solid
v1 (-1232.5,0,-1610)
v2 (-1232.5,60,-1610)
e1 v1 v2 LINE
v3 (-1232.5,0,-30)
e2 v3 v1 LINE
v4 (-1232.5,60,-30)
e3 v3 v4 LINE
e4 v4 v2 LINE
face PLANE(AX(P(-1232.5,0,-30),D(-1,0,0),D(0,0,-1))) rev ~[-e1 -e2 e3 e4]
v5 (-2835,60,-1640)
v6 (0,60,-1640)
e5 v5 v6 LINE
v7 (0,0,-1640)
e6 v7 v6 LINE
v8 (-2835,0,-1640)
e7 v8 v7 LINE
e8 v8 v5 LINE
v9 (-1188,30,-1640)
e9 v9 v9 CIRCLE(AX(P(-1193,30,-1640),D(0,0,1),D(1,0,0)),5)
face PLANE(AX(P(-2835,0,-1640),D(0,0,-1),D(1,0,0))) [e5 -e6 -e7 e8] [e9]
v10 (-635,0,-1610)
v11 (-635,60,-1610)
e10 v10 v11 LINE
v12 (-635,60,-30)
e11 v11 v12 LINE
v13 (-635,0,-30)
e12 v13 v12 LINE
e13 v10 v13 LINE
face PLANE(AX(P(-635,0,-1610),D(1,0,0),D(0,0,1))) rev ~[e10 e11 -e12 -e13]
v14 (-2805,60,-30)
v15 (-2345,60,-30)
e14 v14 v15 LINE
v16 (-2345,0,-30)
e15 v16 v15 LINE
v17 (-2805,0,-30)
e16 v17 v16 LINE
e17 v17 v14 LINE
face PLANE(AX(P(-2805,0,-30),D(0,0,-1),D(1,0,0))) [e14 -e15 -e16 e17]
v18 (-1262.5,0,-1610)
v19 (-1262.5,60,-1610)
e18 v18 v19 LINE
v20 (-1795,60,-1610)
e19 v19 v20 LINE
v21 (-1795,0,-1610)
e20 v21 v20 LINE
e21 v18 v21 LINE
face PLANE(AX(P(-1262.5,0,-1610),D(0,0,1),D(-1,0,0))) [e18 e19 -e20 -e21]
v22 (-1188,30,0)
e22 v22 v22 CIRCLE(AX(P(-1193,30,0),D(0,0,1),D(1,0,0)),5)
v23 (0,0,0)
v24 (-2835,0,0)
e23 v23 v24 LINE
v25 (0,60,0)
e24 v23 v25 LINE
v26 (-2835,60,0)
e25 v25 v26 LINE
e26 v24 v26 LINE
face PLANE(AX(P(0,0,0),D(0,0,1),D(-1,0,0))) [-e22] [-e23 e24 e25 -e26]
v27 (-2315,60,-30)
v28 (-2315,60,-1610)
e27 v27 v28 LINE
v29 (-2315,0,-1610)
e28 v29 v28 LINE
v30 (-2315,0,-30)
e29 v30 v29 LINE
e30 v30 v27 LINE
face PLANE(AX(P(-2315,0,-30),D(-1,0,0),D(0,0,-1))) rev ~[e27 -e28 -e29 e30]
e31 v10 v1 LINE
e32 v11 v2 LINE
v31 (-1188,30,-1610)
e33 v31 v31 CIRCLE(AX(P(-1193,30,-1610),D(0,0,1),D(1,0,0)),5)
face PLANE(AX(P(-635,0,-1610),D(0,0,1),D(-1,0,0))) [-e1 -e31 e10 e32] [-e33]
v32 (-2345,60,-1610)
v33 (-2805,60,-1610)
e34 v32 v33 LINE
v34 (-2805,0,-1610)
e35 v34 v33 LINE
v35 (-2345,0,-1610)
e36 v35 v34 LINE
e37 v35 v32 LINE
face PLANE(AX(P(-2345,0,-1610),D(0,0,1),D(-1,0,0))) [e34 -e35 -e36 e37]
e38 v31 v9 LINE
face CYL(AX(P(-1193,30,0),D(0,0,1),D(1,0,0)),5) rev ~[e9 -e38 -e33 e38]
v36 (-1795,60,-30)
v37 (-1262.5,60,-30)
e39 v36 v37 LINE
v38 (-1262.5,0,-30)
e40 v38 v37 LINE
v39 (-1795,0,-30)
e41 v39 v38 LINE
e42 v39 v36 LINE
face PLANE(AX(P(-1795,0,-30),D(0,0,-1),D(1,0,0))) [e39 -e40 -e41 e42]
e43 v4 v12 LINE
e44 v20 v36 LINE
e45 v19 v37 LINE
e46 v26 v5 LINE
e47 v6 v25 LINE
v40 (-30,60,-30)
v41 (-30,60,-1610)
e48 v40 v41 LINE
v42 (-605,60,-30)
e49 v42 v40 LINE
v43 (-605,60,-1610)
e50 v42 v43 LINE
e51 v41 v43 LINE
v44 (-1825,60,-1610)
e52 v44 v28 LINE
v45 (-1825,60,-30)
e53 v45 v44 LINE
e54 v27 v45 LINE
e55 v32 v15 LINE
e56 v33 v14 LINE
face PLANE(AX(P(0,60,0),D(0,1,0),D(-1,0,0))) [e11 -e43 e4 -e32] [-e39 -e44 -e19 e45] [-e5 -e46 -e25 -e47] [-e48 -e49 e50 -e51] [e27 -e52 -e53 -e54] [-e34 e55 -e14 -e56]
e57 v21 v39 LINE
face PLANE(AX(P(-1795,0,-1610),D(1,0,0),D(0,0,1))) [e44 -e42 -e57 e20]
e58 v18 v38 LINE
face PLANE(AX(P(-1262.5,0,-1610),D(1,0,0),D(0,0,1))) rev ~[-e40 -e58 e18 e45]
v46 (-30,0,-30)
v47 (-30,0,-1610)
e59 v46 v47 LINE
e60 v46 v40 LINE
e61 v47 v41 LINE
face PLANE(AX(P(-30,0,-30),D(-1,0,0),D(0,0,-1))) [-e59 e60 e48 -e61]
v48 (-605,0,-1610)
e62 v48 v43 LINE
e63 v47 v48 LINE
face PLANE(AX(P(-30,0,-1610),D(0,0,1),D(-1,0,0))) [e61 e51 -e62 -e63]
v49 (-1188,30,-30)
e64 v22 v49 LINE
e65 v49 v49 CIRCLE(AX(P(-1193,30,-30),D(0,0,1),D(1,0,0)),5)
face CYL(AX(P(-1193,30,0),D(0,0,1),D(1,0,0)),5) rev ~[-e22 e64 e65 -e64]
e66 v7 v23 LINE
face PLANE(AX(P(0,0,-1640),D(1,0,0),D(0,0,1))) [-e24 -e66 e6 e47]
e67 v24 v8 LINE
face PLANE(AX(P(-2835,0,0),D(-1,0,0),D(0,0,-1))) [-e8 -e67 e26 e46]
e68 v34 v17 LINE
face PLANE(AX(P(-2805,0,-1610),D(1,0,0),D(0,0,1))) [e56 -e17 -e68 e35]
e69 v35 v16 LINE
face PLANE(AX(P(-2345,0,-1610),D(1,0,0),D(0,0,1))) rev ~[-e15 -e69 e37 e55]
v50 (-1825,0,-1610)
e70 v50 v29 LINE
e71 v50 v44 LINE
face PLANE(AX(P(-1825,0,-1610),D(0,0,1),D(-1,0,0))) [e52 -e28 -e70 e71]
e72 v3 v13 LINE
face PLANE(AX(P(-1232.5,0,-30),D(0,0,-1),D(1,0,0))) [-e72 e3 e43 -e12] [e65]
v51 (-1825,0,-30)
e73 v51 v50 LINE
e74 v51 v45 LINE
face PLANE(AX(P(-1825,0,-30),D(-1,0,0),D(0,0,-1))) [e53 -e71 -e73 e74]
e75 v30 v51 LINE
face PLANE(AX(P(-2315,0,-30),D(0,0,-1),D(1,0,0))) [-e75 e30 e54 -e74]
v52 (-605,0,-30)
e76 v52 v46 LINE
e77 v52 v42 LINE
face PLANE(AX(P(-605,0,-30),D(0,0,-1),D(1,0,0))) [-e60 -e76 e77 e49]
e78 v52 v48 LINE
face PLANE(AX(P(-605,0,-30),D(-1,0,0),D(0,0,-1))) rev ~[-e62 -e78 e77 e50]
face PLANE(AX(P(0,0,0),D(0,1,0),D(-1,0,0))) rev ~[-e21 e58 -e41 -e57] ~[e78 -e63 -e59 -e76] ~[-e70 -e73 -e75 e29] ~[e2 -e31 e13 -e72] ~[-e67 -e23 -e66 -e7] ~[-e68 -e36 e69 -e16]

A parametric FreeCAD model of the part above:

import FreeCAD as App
import Part
import Sketcher

doc = App.newDocument("Part")
body = doc.addObject("PartDesign::Body", "Body")

# Sketch on XZ plane
sketch1 = doc.addObject("Sketcher::SketchObject", "Sketch")
body.addObject(sketch1)
sketch1.AttachmentSupport = (doc.XZ_Plane, [""])
sketch1.MapMode = "FlatFace"
sketch1.addGeometry(Part.LineSegment(App.Vector(-2835, 0, 0), App.Vector(0, 0, 0)), False)
sketch1.addGeometry(Part.LineSegment(App.Vector(0, 0, 0), App.Vector(0, -1640, 0)), False)
sketch1.addGeometry(Part.LineSegment(App.Vector(0, -1640, 0), App.Vector(-2835, -1640, 0)), False)
sketch1.addGeometry(Part.LineSegment(App.Vector(-2835, -1640, 0), App.Vector(-2835, 0, 0)), False)
sketch1.addGeometry(Part.LineSegment(App.Vector(-30, -1610, 0), App.Vector(-30, -30, 0)), False)
sketch1.addGeometry(Part.LineSegment(App.Vector(-30, -30, 0), App.Vector(-605, -30, 0)), False)
sketch1.addGeometry(Part.LineSegment(App.Vector(-605, -30, 0), App.Vector(-605, -1610, 0)), False)
sketch1.addGeometry(Part.LineSegment(App.Vector(-605, -1610, 0), App.Vector(-30, -1610, 0)), False)
sketch1.addGeometry(Part.LineSegment(App.Vector(-635, -30, 0), App.Vector(-1232.5, -30, 0)), False)
sketch1.addGeometry(Part.LineSegment(App.Vector(-1232.5, -30, 0), App.Vector(-1232.5, -1610, 0)), False)
sketch1.addGeometry(Part.LineSegment(App.Vector(-1232.5, -1610, 0), App.Vector(-635, -1610, 0)), False)
sketch1.addGeometry(Part.LineSegment(App.Vector(-635, -1610, 0), App.Vector(-635, -30, 0)), False)
sketch1.addGeometry(Part.LineSegment(App.Vector(-1795, -1610, 0), App.Vector(-1262.5, -1610, 0)), False)
sketch1.addGeometry(Part.LineSegment(App.Vector(-1262.5, -1610, 0), App.Vector(-1262.5, -30, 0)), False)
sketch1.addGeometry(Part.LineSegment(App.Vector(-1262.5, -30, 0), App.Vector(-1795, -30, 0)), False)
sketch1.addGeometry(Part.LineSegment(App.Vector(-1795, -30, 0), App.Vector(-1795, -1610, 0)), False)
sketch1.addGeometry(Part.LineSegment(App.Vector(-1825, -30, 0), App.Vector(-2315, -30, 0)), False)
sketch1.addGeometry(Part.LineSegment(App.Vector(-2315, -30, 0), App.Vector(-2315, -1610, 0)), False)
sketch1.addGeometry(Part.LineSegment(App.Vector(-2315, -1610, 0), App.Vector(-1825, -1610, 0)), False)
sketch1.addGeometry(Part.LineSegment(App.Vector(-1825, -1610, 0), App.Vector(-1825, -30, 0)), False)
sketch1.addGeometry(Part.LineSegment(App.Vector(-2805, -30, 0), App.Vector(-2805, -1610, 0)), False)
sketch1.addGeometry(Part.LineSegment(App.Vector(-2805, -1610, 0), App.Vector(-2345, -1610, 0)), False)
sketch1.addGeometry(Part.LineSegment(App.Vector(-2345, -1610, 0), App.Vector(-2345, -30, 0)), False)
sketch1.addGeometry(Part.LineSegment(App.Vector(-2345, -30, 0), App.Vector(-2805, -30, 0)), False)
sketch1.addConstraint(Sketcher.Constraint("Coincident", 0, 2, 1, 1))
sketch1.addConstraint(Sketcher.Constraint("Coincident", 1, 2, 2, 1))
sketch1.addConstraint(Sketcher.Constraint("Coincident", 2, 2, 3, 1))
sketch1.addConstraint(Sketcher.Constraint("Coincident", 3, 2, 0, 1))
sketch1.addConstraint(Sketcher.Constraint("Coincident", 4, 2, 5, 1))
sketch1.addConstraint(Sketcher.Constraint("Coincident", 5, 2, 6, 1))
sketch1.addConstraint(Sketcher.Constraint("Coincident", 6, 2, 7, 1))
sketch1.addConstraint(Sketcher.Constraint("Coincident", 7, 2, 4, 1))
sketch1.addConstraint(Sketcher.Constraint("Coincident", 8, 2, 9, 1))
sketch1.addConstraint(Sketcher.Constraint("Coincident", 9, 2, 10, 1))
sketch1.addConstraint(Sketcher.Constraint("Coincident", 10, 2, 11, 1))
sketch1.addConstraint(Sketcher.Constraint("Coincident", 11, 2, 8, 1))
sketch1.addConstraint(Sketcher.Constraint("Coincident", 12, 2, 13, 1))
sketch1.addConstraint(Sketcher.Constraint("Coincident", 13, 2, 14, 1))
sketch1.addConstraint(Sketcher.Constraint("Coincident", 14, 2, 15, 1))
sketch1.addConstraint(Sketcher.Constraint("Coincident", 15, 2, 12, 1))
sketch1.addConstraint(Sketcher.Constraint("Coincident", 16, 2, 17, 1))
sketch1.addConstraint(Sketcher.Constraint("Coincident", 17, 2, 18, 1))
sketch1.addConstraint(Sketcher.Constraint("Coincident", 18, 2, 19, 1))
sketch1.addConstraint(Sketcher.Constraint("Coincident", 19, 2, 16, 1))
sketch1.addConstraint(Sketcher.Constraint("Coincident", 20, 2, 21, 1))
sketch1.addConstraint(Sketcher.Constraint("Coincident", 21, 2, 22, 1))
sketch1.addConstraint(Sketcher.Constraint("Coincident", 22, 2, 23, 1))
sketch1.addConstraint(Sketcher.Constraint("Coincident", 23, 2, 20, 1))
sketch1.addConstraint(Sketcher.Constraint("Horizontal", 0))
sketch1.addConstraint(Sketcher.Constraint("Vertical", 1))
sketch1.addConstraint(Sketcher.Constraint("Horizontal", 2))
sketch1.addConstraint(Sketcher.Constraint("Vertical", 3))
sketch1.addConstraint(Sketcher.Constraint("Vertical", 4))
sketch1.addConstraint(Sketcher.Constraint("Horizontal", 5))
sketch1.addConstraint(Sketcher.Constraint("Vertical", 6))
sketch1.addConstraint(Sketcher.Constraint("Horizontal", 7))
sketch1.addConstraint(Sketcher.Constraint("Horizontal", 8))
sketch1.addConstraint(Sketcher.Constraint("Vertical", 9))
sketch1.addConstraint(Sketcher.Constraint("Horizontal", 10))
sketch1.addConstraint(Sketcher.Constraint("Vertical", 11))
sketch1.addConstraint(Sketcher.Constraint("Horizontal", 12))
sketch1.addConstraint(Sketcher.Constraint("Vertical", 13))
sketch1.addConstraint(Sketcher.Constraint("Horizontal", 14))
sketch1.addConstraint(Sketcher.Constraint("Vertical", 15))
sketch1.addConstraint(Sketcher.Constraint("Horizontal", 16))
sketch1.addConstraint(Sketcher.Constraint("Vertical", 17))
sketch1.addConstraint(Sketcher.Constraint("Horizontal", 18))
sketch1.addConstraint(Sketcher.Constraint("Vertical", 19))
sketch1.addConstraint(Sketcher.Constraint("Vertical", 20))
sketch1.addConstraint(Sketcher.Constraint("Horizontal", 21))
sketch1.addConstraint(Sketcher.Constraint("Vertical", 22))
sketch1.addConstraint(Sketcher.Constraint("Horizontal", 23))
sketch1.addConstraint(Sketcher.Constraint("Coincident", 0, 2, -1, 1))
sketch1.addConstraint(Sketcher.Constraint("Horizontal", 5, 2, 8, 2))
sketch1.addConstraint(Sketcher.Constraint("Horizontal", 7, 2, 9, 2))
sketch1.addConstraint(Sketcher.Constraint("Horizontal", 10, 2, 12, 2))
sketch1.addConstraint(Sketcher.Constraint("Horizontal", 11, 2, 13, 2))
sketch1.addConstraint(Sketcher.Constraint("Horizontal", 14, 2, 16, 2))
sketch1.addConstraint(Sketcher.Constraint("Horizontal", 15, 2, 17, 2))
sketch1.addConstraint(Sketcher.Constraint("Horizontal", 18, 2, 20, 2))
sketch1.addConstraint(Sketcher.Constraint("Horizontal", 19, 2, 22, 2))
sketch1.addConstraint(Sketcher.Constraint("DistanceX", 0, 1, 0, 2, 2835.0))
sketch1.addConstraint(Sketcher.Constraint("DistanceY", 1, 2, 1, 1, 1640.0))
sketch1.addConstraint(Sketcher.Constraint("DistanceX", 4, 2, -1, 1, 30.0))
sketch1.addConstraint(Sketcher.Constraint("DistanceY", 4, 2, -1, 1, 30.0))
sketch1.addConstraint(Sketcher.Constraint("DistanceX", 10, 2, -1, 1, 635.0))
sketch1.addConstraint(Sketcher.Constraint("DistanceY", 1, 2, 6, 2, 30.0))
sketch1.addConstraint(Sketcher.Constraint("DistanceX", 10, 2, 6, 2, 30.0))
sketch1.addConstraint(Sketcher.Constraint("DistanceX", 12, 2, 9, 2, 30.0))
sketch1.addConstraint(Sketcher.Constraint("DistanceX", 3, 2, 14, 2, 1040.0))
sketch1.addConstraint(Sketcher.Constraint("DistanceX", 16, 2, 14, 2, 520.0))
sketch1.addConstraint(Sketcher.Constraint("DistanceX", 18, 2, 15, 2, 30.0))
sketch1.addConstraint(Sketcher.Constraint("DistanceX", 2, 2, 20, 2, 30.0))
sketch1.addConstraint(Sketcher.Constraint("DistanceX", 21, 2, 17, 2, 30.0))
sketch1.addConstraint(Sketcher.Constraint("DistanceX", 12, 2, -1, 1, 1262.5))
pad1 = doc.addObject("PartDesign::Pad", "Pad")
body.addObject(pad1)
pad1.Profile = sketch1
pad1.Length = 60
pad1.Reversed = True

# Sketch on XY plane
sketch2 = doc.addObject("Sketcher::SketchObject", "Sketch001")
body.addObject(sketch2)
sketch2.AttachmentSupport = (doc.XY_Plane, [""])
sketch2.MapMode = "FlatFace"
sketch2.addGeometry(Part.Circle(App.Vector(-1193, 30, 0), App.Vector(0, 0, 1), 5), False)
sketch2.addConstraint(Sketcher.Constraint("Diameter", 0, 10.0))
sketch2.addConstraint(Sketcher.Constraint("DistanceY", -1, 1, 0, 3, 30.0))
sketch2.addConstraint(Sketcher.Constraint("DistanceX", 0, 3, -1, 1, 1193.0))
pocket1 = doc.addObject("PartDesign::Pocket", "Pocket")
body.addObject(pocket1)
pocket1.Profile = sketch2
pocket1.Length = 3000

doc.recompute()
